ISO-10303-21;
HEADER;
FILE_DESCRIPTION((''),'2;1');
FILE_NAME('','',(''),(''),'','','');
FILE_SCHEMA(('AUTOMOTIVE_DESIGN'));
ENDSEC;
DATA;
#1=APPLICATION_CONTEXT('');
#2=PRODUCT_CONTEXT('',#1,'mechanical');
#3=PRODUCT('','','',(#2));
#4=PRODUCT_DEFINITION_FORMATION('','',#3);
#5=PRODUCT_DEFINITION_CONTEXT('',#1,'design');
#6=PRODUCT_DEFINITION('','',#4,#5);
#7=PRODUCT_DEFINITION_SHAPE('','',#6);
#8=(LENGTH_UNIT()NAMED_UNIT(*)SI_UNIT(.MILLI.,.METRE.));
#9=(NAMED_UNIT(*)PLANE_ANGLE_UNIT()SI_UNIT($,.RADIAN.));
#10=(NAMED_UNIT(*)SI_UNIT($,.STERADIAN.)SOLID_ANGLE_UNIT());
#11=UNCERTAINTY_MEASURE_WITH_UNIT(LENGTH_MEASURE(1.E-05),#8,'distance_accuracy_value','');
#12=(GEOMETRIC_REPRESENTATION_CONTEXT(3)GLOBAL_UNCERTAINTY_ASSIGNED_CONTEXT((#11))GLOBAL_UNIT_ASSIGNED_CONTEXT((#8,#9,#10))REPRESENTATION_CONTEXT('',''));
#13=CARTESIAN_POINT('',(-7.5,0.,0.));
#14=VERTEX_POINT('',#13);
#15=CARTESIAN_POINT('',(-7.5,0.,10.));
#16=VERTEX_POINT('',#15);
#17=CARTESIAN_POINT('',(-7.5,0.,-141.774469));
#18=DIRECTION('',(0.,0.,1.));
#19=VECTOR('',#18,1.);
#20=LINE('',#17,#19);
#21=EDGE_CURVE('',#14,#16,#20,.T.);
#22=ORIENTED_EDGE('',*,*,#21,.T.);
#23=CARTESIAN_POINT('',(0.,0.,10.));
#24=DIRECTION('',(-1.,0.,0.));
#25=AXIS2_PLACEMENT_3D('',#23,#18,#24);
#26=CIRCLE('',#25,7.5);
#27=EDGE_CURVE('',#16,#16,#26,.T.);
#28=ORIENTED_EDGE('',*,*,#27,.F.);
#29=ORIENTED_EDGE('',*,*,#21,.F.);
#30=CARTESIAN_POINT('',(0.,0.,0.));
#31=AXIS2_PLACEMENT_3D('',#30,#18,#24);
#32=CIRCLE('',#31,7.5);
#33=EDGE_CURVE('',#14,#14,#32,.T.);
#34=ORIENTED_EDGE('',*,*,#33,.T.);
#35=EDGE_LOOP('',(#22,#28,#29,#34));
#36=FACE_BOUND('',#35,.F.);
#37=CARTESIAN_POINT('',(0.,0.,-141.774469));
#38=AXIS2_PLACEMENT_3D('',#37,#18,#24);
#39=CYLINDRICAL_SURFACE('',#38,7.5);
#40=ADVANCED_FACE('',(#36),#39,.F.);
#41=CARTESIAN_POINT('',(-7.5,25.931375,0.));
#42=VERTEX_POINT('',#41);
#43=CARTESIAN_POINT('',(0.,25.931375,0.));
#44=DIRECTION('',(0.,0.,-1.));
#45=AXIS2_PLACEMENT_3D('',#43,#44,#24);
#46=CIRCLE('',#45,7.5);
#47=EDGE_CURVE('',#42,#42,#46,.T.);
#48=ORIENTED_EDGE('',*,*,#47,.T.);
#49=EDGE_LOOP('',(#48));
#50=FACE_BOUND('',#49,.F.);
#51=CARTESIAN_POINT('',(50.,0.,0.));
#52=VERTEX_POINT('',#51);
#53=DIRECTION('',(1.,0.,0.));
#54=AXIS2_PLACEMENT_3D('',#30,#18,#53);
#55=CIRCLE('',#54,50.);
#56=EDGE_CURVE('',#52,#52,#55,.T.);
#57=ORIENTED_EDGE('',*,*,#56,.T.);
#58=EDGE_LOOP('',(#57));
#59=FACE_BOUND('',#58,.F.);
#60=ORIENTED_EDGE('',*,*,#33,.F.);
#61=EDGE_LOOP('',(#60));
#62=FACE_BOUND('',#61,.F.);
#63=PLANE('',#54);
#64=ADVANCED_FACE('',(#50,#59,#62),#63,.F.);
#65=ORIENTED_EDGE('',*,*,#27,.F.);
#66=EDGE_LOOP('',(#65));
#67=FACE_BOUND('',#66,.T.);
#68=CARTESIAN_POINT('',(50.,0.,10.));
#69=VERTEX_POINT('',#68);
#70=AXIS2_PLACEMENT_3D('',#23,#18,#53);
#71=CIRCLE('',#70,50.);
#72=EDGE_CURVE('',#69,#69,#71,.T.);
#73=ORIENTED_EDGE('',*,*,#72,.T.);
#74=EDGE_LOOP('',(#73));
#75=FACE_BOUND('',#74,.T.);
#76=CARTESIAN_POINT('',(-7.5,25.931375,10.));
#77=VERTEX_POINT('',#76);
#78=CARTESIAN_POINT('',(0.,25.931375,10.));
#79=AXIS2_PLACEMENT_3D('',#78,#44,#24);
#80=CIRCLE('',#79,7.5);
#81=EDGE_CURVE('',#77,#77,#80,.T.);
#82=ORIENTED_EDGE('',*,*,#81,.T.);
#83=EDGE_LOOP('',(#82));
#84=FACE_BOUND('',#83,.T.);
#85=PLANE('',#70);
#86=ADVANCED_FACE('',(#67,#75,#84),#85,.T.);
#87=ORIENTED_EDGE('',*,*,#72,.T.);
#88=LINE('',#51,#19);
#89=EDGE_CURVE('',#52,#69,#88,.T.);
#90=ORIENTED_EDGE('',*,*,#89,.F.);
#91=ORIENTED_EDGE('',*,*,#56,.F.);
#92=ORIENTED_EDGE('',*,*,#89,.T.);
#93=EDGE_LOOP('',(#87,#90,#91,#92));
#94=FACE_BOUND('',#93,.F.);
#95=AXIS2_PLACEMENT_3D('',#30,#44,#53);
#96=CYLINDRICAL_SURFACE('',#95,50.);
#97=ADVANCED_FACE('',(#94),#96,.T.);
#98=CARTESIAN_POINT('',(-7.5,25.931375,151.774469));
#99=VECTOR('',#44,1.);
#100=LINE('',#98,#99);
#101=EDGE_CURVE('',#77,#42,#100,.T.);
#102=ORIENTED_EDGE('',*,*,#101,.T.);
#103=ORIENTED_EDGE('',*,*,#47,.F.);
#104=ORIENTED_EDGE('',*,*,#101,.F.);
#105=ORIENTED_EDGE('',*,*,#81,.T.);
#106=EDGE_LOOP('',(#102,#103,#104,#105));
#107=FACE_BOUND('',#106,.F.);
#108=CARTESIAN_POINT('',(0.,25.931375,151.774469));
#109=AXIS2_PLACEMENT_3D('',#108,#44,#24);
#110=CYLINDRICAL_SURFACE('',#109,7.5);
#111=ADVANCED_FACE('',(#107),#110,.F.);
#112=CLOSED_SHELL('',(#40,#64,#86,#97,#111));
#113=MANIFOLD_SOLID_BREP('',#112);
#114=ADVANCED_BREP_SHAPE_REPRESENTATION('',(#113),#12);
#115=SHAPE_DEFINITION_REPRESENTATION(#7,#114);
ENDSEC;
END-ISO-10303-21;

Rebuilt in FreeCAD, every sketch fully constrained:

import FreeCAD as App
import Part
import Sketcher
from FreeCAD import Vector

doc = App.newDocument("Part")
body = doc.addObject("PartDesign::Body", "Body")

sketch1 = body.newObject("Sketcher::SketchObject", "Sketch")
sketch1.AttachmentSupport = (doc.getObject("XY_Plane"), [""])
sketch1.MapMode = "FlatFace"
sketch1.addGeometry(Part.Circle(Vector(0, 0, 0), Vector(0, 0, 1), 50), False)
sketch1.addConstraint(Sketcher.Constraint("Coincident", 0, 3, -1, 1))
sketch1.addConstraint(Sketcher.Constraint("Diameter", 0, 100.0))
pad1 = body.newObject("PartDesign::Pad", "Pad")
pad1.Profile = sketch1
pad1.Length = 10

sketch2 = body.newObject("Sketcher::SketchObject", "Sketch001")
sketch2.AttachmentSupport = (doc.getObject("XY_Plane"), [""])
sketch2.MapMode = "FlatFace"
sketch2.AttachmentOffset = App.Placement(Vector(0, 0, 10), App.Rotation())
sketch2.addGeometry(Part.Circle(Vector(0, 25.931375, 0), Vector(0, 0, 1), 7.5), False)
sketch2.addConstraint(Sketcher.Constraint("PointOnObject", 0, 3, -2))
sketch2.addConstraint(Sketcher.Constraint("Diameter", 0, 15.0))
sketch2.addConstraint(Sketcher.Constraint("DistanceY", -1, 1, 0, 3, 25.931375))
doc.recompute()
hole = body.newObject("PartDesign::Hole", "Hole")
hole.Profile = sketch2
hole.ThreadType = "None"
hole.Diameter = 15
hole.DepthType = "ThroughAll"

sketch3 = body.newObject("Sketcher::SketchObject", "Sketch002")
sketch3.AttachmentSupport = (doc.getObject("XY_Plane"), [""])
sketch3.MapMode = "FlatFace"
sketch3.addGeometry(Part.Circle(Vector(0, 0, 0), Vector(0, 0, 1), 7.5), False)
sketch3.addConstraint(Sketcher.Constraint("Coincident", 0, 3, -1, 1))
sketch3.addConstraint(Sketcher.Constraint("Diameter", 0, 15.0))
doc.recompute()
hole2 = body.newObject("PartDesign::Hole", "Hole001")
hole2.Profile = sketch3
hole2.ThreadType = "None"
hole2.Diameter = 15
hole2.DepthType = "ThroughAll"
hole2.Reversed = True

doc.recompute()
